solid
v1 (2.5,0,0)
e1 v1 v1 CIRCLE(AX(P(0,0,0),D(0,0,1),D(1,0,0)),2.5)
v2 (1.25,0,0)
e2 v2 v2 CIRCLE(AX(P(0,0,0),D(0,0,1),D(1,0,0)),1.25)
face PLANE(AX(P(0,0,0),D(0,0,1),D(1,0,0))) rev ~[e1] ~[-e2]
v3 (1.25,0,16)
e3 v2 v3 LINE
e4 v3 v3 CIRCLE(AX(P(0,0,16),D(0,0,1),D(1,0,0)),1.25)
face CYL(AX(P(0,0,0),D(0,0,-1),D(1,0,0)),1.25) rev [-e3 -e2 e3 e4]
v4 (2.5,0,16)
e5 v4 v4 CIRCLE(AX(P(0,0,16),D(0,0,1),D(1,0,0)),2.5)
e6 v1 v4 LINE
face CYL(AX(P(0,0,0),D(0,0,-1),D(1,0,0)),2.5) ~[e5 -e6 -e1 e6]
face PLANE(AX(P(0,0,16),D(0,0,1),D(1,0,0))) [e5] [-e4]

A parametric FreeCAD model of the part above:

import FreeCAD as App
import Part
import Sketcher
Q = App.Units.Quantity

doc = App.newDocument("Part")
body = doc.addObject("PartDesign::Body", "Body")

# Sketch on XY plane
sketch1 = body.newObject("Sketcher::SketchObject", "Sketch")
sketch1.AttachmentSupport = (doc.getObject("XY_Plane"), [""])
sketch1.MapMode = "FlatFace"
sketch1.addGeometry(Part.Circle(App.Vector(0, 0, 0), App.Vector(0, 0, 1), 2.5), False)
sketch1.addGeometry(Part.Circle(App.Vector(0, 0, 0), App.Vector(0, 0, 1), 1.2), False)
sketch1.addConstraint(Sketcher.Constraint("Coincident", 0, 3, -1, 1))
sketch1.addConstraint(Sketcher.Constraint("Coincident", 1, 3, -1, 1))
sketch1.addConstraint(Sketcher.Constraint("Diameter", 0, Q("5 mm")))
sketch1.addConstraint(Sketcher.Constraint("Diameter", 1, Q("2.5 mm")))
pad1 = body.newObject("PartDesign::Pad", "Pad")
pad1.Profile = sketch1
pad1.Length = 16

doc.recompute()
